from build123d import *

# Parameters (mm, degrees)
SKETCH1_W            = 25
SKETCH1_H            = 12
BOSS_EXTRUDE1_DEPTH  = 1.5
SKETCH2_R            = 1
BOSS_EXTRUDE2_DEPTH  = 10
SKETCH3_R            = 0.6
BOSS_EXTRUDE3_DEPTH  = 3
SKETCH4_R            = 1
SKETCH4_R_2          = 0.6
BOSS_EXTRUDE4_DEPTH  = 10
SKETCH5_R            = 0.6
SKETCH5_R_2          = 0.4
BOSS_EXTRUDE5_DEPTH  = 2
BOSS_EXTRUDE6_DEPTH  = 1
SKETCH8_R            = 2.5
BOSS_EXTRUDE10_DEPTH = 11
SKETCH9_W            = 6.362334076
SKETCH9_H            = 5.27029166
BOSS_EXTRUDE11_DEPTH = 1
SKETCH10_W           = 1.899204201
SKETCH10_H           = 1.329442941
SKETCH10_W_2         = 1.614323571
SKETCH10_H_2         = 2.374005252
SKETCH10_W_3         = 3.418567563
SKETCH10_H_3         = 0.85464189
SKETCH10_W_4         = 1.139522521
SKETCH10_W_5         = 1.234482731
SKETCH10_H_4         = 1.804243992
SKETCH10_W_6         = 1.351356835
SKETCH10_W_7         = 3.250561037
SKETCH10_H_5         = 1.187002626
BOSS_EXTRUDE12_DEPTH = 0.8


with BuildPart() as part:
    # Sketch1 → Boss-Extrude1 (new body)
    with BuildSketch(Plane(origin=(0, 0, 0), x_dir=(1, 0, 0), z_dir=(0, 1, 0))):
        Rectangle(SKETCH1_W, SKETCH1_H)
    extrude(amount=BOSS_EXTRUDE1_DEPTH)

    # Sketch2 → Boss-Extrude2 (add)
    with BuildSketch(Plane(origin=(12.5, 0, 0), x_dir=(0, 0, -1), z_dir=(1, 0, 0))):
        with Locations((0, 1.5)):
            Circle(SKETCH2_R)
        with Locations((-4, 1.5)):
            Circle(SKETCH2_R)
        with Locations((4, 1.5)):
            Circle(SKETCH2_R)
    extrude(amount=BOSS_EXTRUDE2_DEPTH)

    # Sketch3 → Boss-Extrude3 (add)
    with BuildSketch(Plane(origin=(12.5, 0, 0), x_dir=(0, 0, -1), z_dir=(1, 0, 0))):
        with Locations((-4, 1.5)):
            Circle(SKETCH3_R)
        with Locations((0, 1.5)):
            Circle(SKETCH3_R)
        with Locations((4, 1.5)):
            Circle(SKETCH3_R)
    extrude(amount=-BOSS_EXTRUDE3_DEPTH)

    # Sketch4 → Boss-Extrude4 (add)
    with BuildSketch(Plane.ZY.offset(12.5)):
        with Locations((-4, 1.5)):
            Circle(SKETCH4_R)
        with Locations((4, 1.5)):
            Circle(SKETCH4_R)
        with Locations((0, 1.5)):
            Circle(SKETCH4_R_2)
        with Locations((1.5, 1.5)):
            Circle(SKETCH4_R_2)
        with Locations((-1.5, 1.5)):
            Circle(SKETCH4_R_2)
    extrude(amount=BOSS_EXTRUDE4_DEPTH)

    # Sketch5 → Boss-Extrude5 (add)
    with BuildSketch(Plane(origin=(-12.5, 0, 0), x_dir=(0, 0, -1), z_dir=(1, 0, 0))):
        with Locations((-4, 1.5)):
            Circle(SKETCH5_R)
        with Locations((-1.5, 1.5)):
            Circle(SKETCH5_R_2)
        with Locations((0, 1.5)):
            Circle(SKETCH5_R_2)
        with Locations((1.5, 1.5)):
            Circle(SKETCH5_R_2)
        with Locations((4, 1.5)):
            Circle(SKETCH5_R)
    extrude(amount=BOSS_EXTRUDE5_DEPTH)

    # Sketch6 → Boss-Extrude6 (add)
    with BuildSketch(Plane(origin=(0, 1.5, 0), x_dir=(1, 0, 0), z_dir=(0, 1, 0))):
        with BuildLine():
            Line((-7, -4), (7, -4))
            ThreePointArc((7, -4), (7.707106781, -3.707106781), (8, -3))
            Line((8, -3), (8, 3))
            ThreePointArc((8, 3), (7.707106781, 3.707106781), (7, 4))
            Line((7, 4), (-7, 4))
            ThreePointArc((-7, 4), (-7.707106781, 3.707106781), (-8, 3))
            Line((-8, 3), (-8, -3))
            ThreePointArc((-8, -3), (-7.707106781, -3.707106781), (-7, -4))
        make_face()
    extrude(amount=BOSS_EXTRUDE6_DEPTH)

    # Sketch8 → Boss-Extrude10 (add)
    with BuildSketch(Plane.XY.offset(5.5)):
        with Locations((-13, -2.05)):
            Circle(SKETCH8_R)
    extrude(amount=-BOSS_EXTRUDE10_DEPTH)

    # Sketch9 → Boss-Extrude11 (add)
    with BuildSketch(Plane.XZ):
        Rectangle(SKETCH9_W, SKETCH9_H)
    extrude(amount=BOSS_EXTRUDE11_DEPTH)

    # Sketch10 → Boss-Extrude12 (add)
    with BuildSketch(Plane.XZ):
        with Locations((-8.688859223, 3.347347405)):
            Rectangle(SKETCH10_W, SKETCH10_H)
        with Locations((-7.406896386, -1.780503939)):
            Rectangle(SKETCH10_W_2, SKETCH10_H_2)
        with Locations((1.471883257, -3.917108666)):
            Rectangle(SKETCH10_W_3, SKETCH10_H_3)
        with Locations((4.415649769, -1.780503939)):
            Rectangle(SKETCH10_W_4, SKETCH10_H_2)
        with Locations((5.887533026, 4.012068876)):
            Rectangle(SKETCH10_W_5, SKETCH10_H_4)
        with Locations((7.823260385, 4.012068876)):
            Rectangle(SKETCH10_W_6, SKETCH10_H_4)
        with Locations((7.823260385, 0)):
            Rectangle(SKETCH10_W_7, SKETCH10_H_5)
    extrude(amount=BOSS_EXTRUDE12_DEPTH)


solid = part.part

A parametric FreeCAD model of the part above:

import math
import FreeCAD as App
import Part
import Sketcher

V = App.Vector
Q = App.Units.Quantity


def add_polygon(sketch, points):
    """Adds a closed chain of lines whose ends are joined by coincident constraints."""
    first, n = sketch.GeometryCount, len(points)
    for a, b in zip(points, points[1:] + points[:1]):
        sketch.addGeometry(Part.LineSegment(App.Vector(*a, 0), App.Vector(*b, 0)), False)
    for i in range(n):
        sketch.addConstraint(Sketcher.Constraint("Coincident", first + i, 2, first + (i + 1) % n, 1))

doc = App.newDocument("Part")
body = doc.addObject("PartDesign::Body", "Body")

sketch1 = body.newObject("Sketcher::SketchObject", "Sketch")
sketch1.AttachmentSupport = (doc.getObject("XZ_Plane"), [""])
sketch1.MapMode = "FlatFace"
add_polygon(sketch1, [(-12, -6), (-12, 6), (12, 6), (12, -6)])
sketch1.addConstraint([
    Sketcher.Constraint("Vertical", 0),
    Sketcher.Constraint("Horizontal", 1),
    Sketcher.Constraint("Vertical", 2),
    Sketcher.Constraint("Horizontal", 3),
    Sketcher.Constraint("Symmetric", 0, 2, 2, 2, -1, 1),
    Sketcher.Constraint("DistanceX", 1, 1, 1, 2, Q("25 mm")),
    Sketcher.Constraint("DistanceY", 0, 1, 0, 2, Q("12 mm")),
])
pad1 = body.newObject("PartDesign::Pad", "Pad")
pad1.Profile = sketch1
pad1.Length = 1.5
pad1.Reversed = True

sketch2 = body.newObject("Sketcher::SketchObject", "Sketch001")
sketch2.AttachmentSupport = (doc.getObject("YZ_Plane"), [""])
sketch2.MapMode = "FlatFace"
sketch2.AttachmentOffset = App.Placement(V(0, 0, 12.5), App.Rotation())
sketch2.addGeometry([
    Part.Circle(V(1.5, 0, 0), V(0, 0, 1), 1),
    Part.Circle(V(1.5, 4, 0), V(0, 0, 1), 1),
    Part.Circle(V(1.5, -4, 0), V(0, 0, 1), 1),
], False)
sketch2.addConstraint([
    Sketcher.Constraint("Equal", 0, 1),
    Sketcher.Constraint("Equal", 1, 2),
    Sketcher.Constraint("Symmetric", 1, 3, 2, 3, -1),
    Sketcher.Constraint("PointOnObject", 0, 3, -1),
    Sketcher.Constraint("Vertical", 0, 3, 1, 3),
    Sketcher.Constraint("Diameter", 0, Q("2 mm")),
    Sketcher.Constraint("DistanceY", -1, 1, 1, 3, Q("4 mm")),
    Sketcher.Constraint("DistanceX", -1, 1, 0, 3, Q("1.5 mm")),
])
pad2 = body.newObject("PartDesign::Pad", "Pad001")
pad2.Profile = sketch2
pad2.Length = 10

sketch3 = body.newObject("Sketcher::SketchObject", "Sketch002")
sketch3.AttachmentSupport = (doc.getObject("YZ_Plane"), [""])
sketch3.MapMode = "FlatFace"
sketch3.AttachmentOffset = App.Placement(V(0, 0, 12.5), App.Rotation())
sketch3.addGeometry([
    Part.Circle(V(1.5, 4, 0), V(0, 0, 1), 0.6),
    Part.Circle(V(1.5, 0, 0), V(0, 0, 1), 0.6),
    Part.Circle(V(1.5, -4, 0), V(0, 0, 1), 0.6),
], False)
sketch3.addConstraint([
    Sketcher.Constraint("Equal", 0, 1),
    Sketcher.Constraint("Equal", 1, 2),
    Sketcher.Constraint("Symmetric", 0, 3, 2, 3, -1),
    Sketcher.Constraint("PointOnObject", 1, 3, -1),
    Sketcher.Constraint("Vertical", 0, 3, 1, 3),
    Sketcher.Constraint("Diameter", 0, Q("1.2 mm")),
    Sketcher.Constraint("DistanceY", -1, 1, 0, 3, Q("4 mm")),
    Sketcher.Constraint("DistanceX", -1, 1, 0, 3, Q("1.5 mm")),
])
pad3 = body.newObject("PartDesign::Pad", "Pad002")
pad3.Profile = sketch3
pad3.Length = 3
pad3.Reversed = True

sketch4 = body.newObject("Sketcher::SketchObject", "Sketch003")
sketch4.AttachmentSupport = (doc.getObject("YZ_Plane"), [""])
sketch4.MapMode = "FlatFace"
sketch4.AttachmentOffset = App.Placement(V(0, 0, -12.5), App.Rotation())
sketch4.addGeometry([
    Part.Circle(V(1.5, -4, 0), V(0, 0, 1), 1),
    Part.Circle(V(1.5, 4, 0), V(0, 0, 1), 1),
    Part.Circle(V(1.5, 0, 0), V(0, 0, 1), 0.6),
    Part.Circle(V(1.5, 1.5, 0), V(0, 0, 1), 0.6),
    Part.Circle(V(1.5, -1.5, 0), V(0, 0, 1), 0.6),
], False)
sketch4.addConstraint([
    Sketcher.Constraint("Equal", 0, 1),
    Sketcher.Constraint("Equal", 2, 3),
    Sketcher.Constraint("Equal", 3, 4),
    Sketcher.Constraint("Symmetric", 0, 3, 1, 3, -1),
    Sketcher.Constraint("Symmetric", 3, 3, 4, 3, -1),
    Sketcher.Constraint("PointOnObject", 2, 3, -1),
    Sketcher.Constraint("Vertical", 1, 3, 2, 3),
    Sketcher.Constraint("Vertical", 2, 3, 3, 3),
    Sketcher.Constraint("Diameter", 0, Q("2 mm")),
    Sketcher.Constraint("Diameter", 2, Q("1.2 mm")),
    Sketcher.Constraint("DistanceY", 0, 3, -1, 1, Q("4 mm")),
    Sketcher.Constraint("DistanceY", 4, 3, 3, 3, Q("3 mm")),
    Sketcher.Constraint("DistanceX", -1, 1, 0, 3, Q("1.5 mm")),
])
pad4 = body.newObject("PartDesign::Pad", "Pad003")
pad4.Profile = sketch4
pad4.Length = 10
pad4.Reversed = True

sketch5 = body.newObject("Sketcher::SketchObject", "Sketch004")
sketch5.AttachmentSupport = (doc.getObject("YZ_Plane"), [""])
sketch5.MapMode = "FlatFace"
sketch5.AttachmentOffset = App.Placement(V(0, 0, -12.5), App.Rotation())
sketch5.addGeometry([
    Part.Circle(V(1.5, 4, 0), V(0, 0, 1), 0.6),
    Part.Circle(V(1.5, 1.5, 0), V(0, 0, 1), 0.4),
    Part.Circle(V(1.5, 0, 0), V(0, 0, 1), 0.4),
    Part.Circle(V(1.5, -1.5, 0), V(0, 0, 1), 0.4),
    Part.Circle(V(1.5, -4, 0), V(0, 0, 1), 0.6),
], False)
sketch5.addConstraint([
    Sketcher.Constraint("Equal", 1, 2),
    Sketcher.Constraint("Equal", 2, 3),
    Sketcher.Constraint("Equal", 0, 4),
    Sketcher.Constraint("Symmetric", 1, 3, 3, 3, -1),
    Sketcher.Constraint("Symmetric", 0, 3, 4, 3, -1),
    Sketcher.Constraint("PointOnObject", 2, 3, -1),
    Sketcher.Constraint("Vertical", 0, 3, 1, 3),
    Sketcher.Constraint("Vertical", 1, 3, 2, 3),
    Sketcher.Constraint("Diameter", 0, Q("1.2 mm")),
    Sketcher.Constraint("Diameter", 1, Q("0.8 mm")),
    Sketcher.Constraint("DistanceY", -1, 1, 0, 3, Q("4 mm")),
    Sketcher.Constraint("DistanceY", 3, 3, 1, 3, Q("3 mm")),
    Sketcher.Constraint("DistanceX", -1, 1, 0, 3, Q("1.5 mm")),
])
pad5 = body.newObject("PartDesign::Pad", "Pad004")
pad5.Profile = sketch5
pad5.Length = 2

sketch6 = body.newObject("Sketcher::SketchObject", "Sketch005")
sketch6.AttachmentSupport = (doc.getObject("XZ_Plane"), [""])
sketch6.MapMode = "FlatFace"
sketch6.AttachmentOffset = App.Placement(V(0, 0, -1.5), App.Rotation())
sketch6.addGeometry([
    Part.LineSegment(V(-7, 4, 0), V(7, 4, 0)),
    Part.ArcOfCircle(Part.Circle(V(7, 3, 0), V(0, 0, 1), 1), math.radians(0), math.radians(90)),
    Part.LineSegment(V(8, 3, 0), V(8, -3, 0)),
    Part.ArcOfCircle(Part.Circle(V(7, -3, 0), V(0, 0, 1), 1), math.radians(-90), math.radians(0)),
    Part.LineSegment(V(7, -4, 0), V(-7, -4, 0)),
    Part.ArcOfCircle(Part.Circle(V(-7, -3, 0), V(0, 0, 1), 1), math.radians(-180), math.radians(-90)),
    Part.LineSegment(V(-8, -3, 0), V(-8, 3, 0)),
    Part.ArcOfCircle(Part.Circle(V(-7, 3, 0), V(0, 0, 1), 1), math.radians(90), math.radians(180)),
], False)
sketch6.addConstraint([
    Sketcher.Constraint("Tangent", 0, 2, 1, 2),
    Sketcher.Constraint("Tangent", 1, 1, 2, 1),
    Sketcher.Constraint("Tangent", 2, 2, 3, 2),
    Sketcher.Constraint("Tangent", 3, 1, 4, 1),
    Sketcher.Constraint("Tangent", 4, 2, 5, 2),
    Sketcher.Constraint("Tangent", 5, 1, 6, 1),
    Sketcher.Constraint("Tangent", 6, 2, 7, 2),
    Sketcher.Constraint("Tangent", 7, 1, 0, 1),
    Sketcher.Constraint("Horizontal", 0),
    Sketcher.Constraint("Vertical", 2),
    Sketcher.Constraint("Horizontal", 4),
    Sketcher.Constraint("Vertical", 6),
    Sketcher.Constraint("Equal", 1, 3),
    Sketcher.Constraint("Equal", 3, 5),
    Sketcher.Constraint("Equal", 5, 7),
    Sketcher.Constraint("Symmetric", 1, 3, 5, 3, -1, 1),
    Sketcher.Constraint("Radius", 1, Q("1 mm")),
    Sketcher.Constraint("DistanceX", 0, 1, 0, 2, Q("14 mm")),
    Sketcher.Constraint("DistanceY", 2, 2, 2, 1, Q("6 mm")),
])
pad6 = body.newObject("PartDesign::Pad", "Pad005")
pad6.Profile = sketch6
pad6.Length = 1
pad6.Reversed = True

sketch7 = body.newObject("Sketcher::SketchObject", "Sketch006")
sketch7.AttachmentSupport = (doc.getObject("XY_Plane"), [""])
sketch7.MapMode = "FlatFace"
sketch7.AttachmentOffset = App.Placement(V(0, 0, 5.5), App.Rotation())
sketch7.addGeometry(Part.Circle(V(-13, -2, 0), V(0, 0, 1), 2.5), False)
sketch7.addConstraint([
    Sketcher.Constraint("Diameter", 0, Q("5 mm")),
    Sketcher.Constraint("DistanceX", 0, 3, -1, 1, Q("13 mm")),
    Sketcher.Constraint("DistanceY", 0, 3, -1, 1, Q("2.05 mm")),
])
pad7 = body.newObject("PartDesign::Pad", "Pad006")
pad7.Profile = sketch7
pad7.Length = 11
pad7.Reversed = True

sketch8 = body.newObject("Sketcher::SketchObject", "Sketch007")
sketch8.AttachmentSupport = (doc.getObject("XZ_Plane"), [""])
sketch8.MapMode = "FlatFace"
add_polygon(sketch8, [(-3, 3), (-3, -3), (3, -3), (3, 3)])
sketch8.addConstraint([
    Sketcher.Constraint("Vertical", 0),
    Sketcher.Constraint("Horizontal", 1),
    Sketcher.Constraint("Vertical", 2),
    Sketcher.Constraint("Horizontal", 3),
    Sketcher.Constraint("Symmetric", 0, 2, 2, 2, -1, 1),
    Sketcher.Constraint("DistanceY", 0, 2, 0, 1, Q("5.270292 mm")),
    Sketcher.Constraint("DistanceX", 1, 1, 1, 2, Q("6.362334 mm")),
])
pad8 = body.newObject("PartDesign::Pad", "Pad007")
pad8.Profile = sketch8
pad8.Length = 1

sketch9 = body.newObject("Sketcher::SketchObject", "Sketch008")
sketch9.AttachmentSupport = (doc.getObject("XZ_Plane"), [""])
sketch9.MapMode = "FlatFace"
add_polygon(sketch9, [(-9.6, 4), (-9.6, 2.7), (-7.7, 2.7), (-7.7, 4)])
add_polygon(sketch9, [(-8.2, -0.6), (-8.2, -3), (-6.6, -3), (-6.6, -0.6)])
add_polygon(sketch9, [(-0.2, -3.5), (-0.2, -4.3), (3.2, -4.3), (3.2, -3.5)])
add_polygon(sketch9, [(3.8, -0.6), (3.8, -3), (5, -3), (5, -0.6)])
add_polygon(sketch9, [(5.3, 4.9), (5.3, 3.1), (6.5, 3.1), (6.5, 4.9)])
add_polygon(sketch9, [(7.1, 4.9), (7.1, 3.1), (8.5, 3.1), (8.5, 4.9)])
add_polygon(sketch9, [(6.2, 0.6), (6.2, -0.6), (9.4, -0.6), (9.4, 0.6)])
sketch9.addConstraint([
    Sketcher.Constraint("Vertical", 0),
    Sketcher.Constraint("Horizontal", 1),
    Sketcher.Constraint("Vertical", 2),
    Sketcher.Constraint("Horizontal", 3),
    Sketcher.Constraint("Vertical", 4),
    Sketcher.Constraint("Horizontal", 5),
    Sketcher.Constraint("Vertical", 6),
    Sketcher.Constraint("Horizontal", 7),
    Sketcher.Constraint("Vertical", 8),
    Sketcher.Constraint("Horizontal", 9),
    Sketcher.Constraint("Vertical", 10),
    Sketcher.Constraint("Horizontal", 11),
    Sketcher.Constraint("Vertical", 12),
    Sketcher.Constraint("Horizontal", 13),
    Sketcher.Constraint("Vertical", 14),
    Sketcher.Constraint("Horizontal", 15),
    Sketcher.Constraint("Vertical", 16),
    Sketcher.Constraint("Horizontal", 17),
    Sketcher.Constraint("Vertical", 18),
    Sketcher.Constraint("Horizontal", 19),
    Sketcher.Constraint("Vertical", 20),
    Sketcher.Constraint("Horizontal", 21),
    Sketcher.Constraint("Vertical", 22),
    Sketcher.Constraint("Horizontal", 23),
    Sketcher.Constraint("Vertical", 24),
    Sketcher.Constraint("Horizontal", 25),
    Sketcher.Constraint("Vertical", 26),
    Sketcher.Constraint("Horizontal", 27),
    Sketcher.Constraint("Horizontal", 5, 2, 12, 2),
    Sketcher.Constraint("Horizontal", 7, 2, 14, 2),
    Sketcher.Constraint("Horizontal", 17, 2, 20, 2),
    Sketcher.Constraint("Horizontal", 19, 2, 22, 2),
    Sketcher.Constraint("Horizontal", 15, 2, 24, 2),
    Sketcher.Constraint("DistanceX", 25, 1, 25, 2, Q("3.250561 mm")),
    Sketcher.Constraint("DistanceY", 8, 2, 8, 1, Q("0.854642 mm")),
    Sketcher.Constraint("DistanceY", 6, 2, -1, 1, Q("0.593501 mm")),
    Sketcher.Constraint("DistanceX", 8, 2, -1, 1, Q("0.237401 mm")),
    Sketcher.Constraint("DistanceY", -1, 1, 26, 2, Q("0.593501 mm")),
    Sketcher.Constraint("DistanceX", 4, 2, 1, 2, Q("0.474801 mm")),
    Sketcher.Constraint("DistanceX", 5, 2, 9, 2, Q("9.780902 mm")),
    Sketcher.Constraint("DistanceX", 1, 1, 1, 2, Q("1.899204 mm")),
    Sketcher.Constraint("DistanceX", 5, 1, 5, 2, Q("1.614324 mm")),
    Sketcher.Constraint("DistanceX", 9, 1, 9, 2, Q("3.418568 mm")),
    Sketcher.Constraint("DistanceX", 13, 1, 13, 2, Q("1.139523 mm")),
    Sketcher.Constraint("DistanceX", 17, 1, 17, 2, Q("1.234483 mm")),
    Sketcher.Constraint("DistanceX", 21, 1, 21, 2, Q("1.351357 mm")),
    Sketcher.Constraint("DistanceY", 0, 2, 0, 1, Q("1.329443 mm")),
    Sketcher.Constraint("DistanceY", 4, 2, 4, 1, Q("2.374005 mm")),
    Sketcher.Constraint("DistanceY", 16, 2, 16, 1, Q("1.804244 mm")),
    Sketcher.Constraint("DistanceY", -1, 1, 2, 2, Q("4.012069 mm")),
    Sketcher.Constraint("DistanceY", 8, 2, -1, 1, Q("4.34443 mm")),
    Sketcher.Constraint("DistanceX", -1, 1, 12, 2, Q("3.845889 mm")),
    Sketcher.Constraint("DistanceX", -1, 1, 16, 2, Q("5.270292 mm")),
    Sketcher.Constraint("DistanceY", -1, 1, 18, 2, Q("4.914191 mm")),
    Sketcher.Constraint("DistanceX", -1, 1, 20, 2, Q("7.147582 mm")),
    Sketcher.Constraint("DistanceX", -1, 1, 24, 2, Q("6.19798 mm")),
])
pad9 = body.newObject("PartDesign::Pad", "Pad008")
pad9.Profile = sketch9
pad9.Length = 0.8

doc.recompute()
